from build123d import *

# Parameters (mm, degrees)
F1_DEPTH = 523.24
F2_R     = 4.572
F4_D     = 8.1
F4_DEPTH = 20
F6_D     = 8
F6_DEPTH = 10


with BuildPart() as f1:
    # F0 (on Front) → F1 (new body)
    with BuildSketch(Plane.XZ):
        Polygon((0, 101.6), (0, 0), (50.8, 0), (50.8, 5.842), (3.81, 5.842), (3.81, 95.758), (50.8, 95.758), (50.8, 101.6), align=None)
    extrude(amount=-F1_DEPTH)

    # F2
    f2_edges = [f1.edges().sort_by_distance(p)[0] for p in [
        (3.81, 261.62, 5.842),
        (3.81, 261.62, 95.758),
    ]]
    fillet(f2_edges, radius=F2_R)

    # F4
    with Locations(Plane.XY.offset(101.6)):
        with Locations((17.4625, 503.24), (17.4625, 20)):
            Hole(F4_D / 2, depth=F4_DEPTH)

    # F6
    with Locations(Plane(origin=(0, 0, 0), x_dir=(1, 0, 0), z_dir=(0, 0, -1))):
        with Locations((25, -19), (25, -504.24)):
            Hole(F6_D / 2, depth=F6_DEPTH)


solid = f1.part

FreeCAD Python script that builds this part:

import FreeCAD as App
import Part
import Sketcher
from FreeCAD import Vector
Q = App.Units.Quantity


def edges_at(feature, points):
    """Names of the edges that pass closest to the given points."""
    edges = feature.Shape.Edges
    near = lambda p: min(range(len(edges)), key=lambda i: edges[i].distToShape(Part.Vertex(*p))[0])
    return sorted({f"Edge{near(p) + 1}" for p in points})


def add_polygon(sketch, points):
    """Adds a closed chain of lines whose ends are joined by coincident constraints."""
    first, n = sketch.GeometryCount, len(points)
    for a, b in zip(points, points[1:] + points[:1]):
        sketch.addGeometry(Part.LineSegment(App.Vector(*a, 0), App.Vector(*b, 0)), False)
    for i in range(n):
        sketch.addConstraint(Sketcher.Constraint("Coincident", first + i, 2, first + (i + 1) % n, 1))

doc = App.newDocument("Part")
body = doc.addObject("PartDesign::Body", "Body")

sketch1 = doc.addObject("Sketcher::SketchObject", "Sketch")
body.addObject(sketch1)
sketch1.AttachmentSupport = (doc.XZ_Plane, [""])
sketch1.MapMode = "FlatFace"
add_polygon(sketch1, [(0, 101.6), (0, 0), (50.8, 0), (50.8, 5.842), (3.81, 5.842), (3.81, 95.758), (50.8, 95.758), (50.8, 101.6)])
sketch1.addConstraint(Sketcher.Constraint("Vertical", 0))
sketch1.addConstraint(Sketcher.Constraint("Horizontal", 1))
sketch1.addConstraint(Sketcher.Constraint("Vertical", 2))
sketch1.addConstraint(Sketcher.Constraint("Horizontal", 3))
sketch1.addConstraint(Sketcher.Constraint("Vertical", 4))
sketch1.addConstraint(Sketcher.Constraint("Horizontal", 5))
sketch1.addConstraint(Sketcher.Constraint("Vertical", 6))
sketch1.addConstraint(Sketcher.Constraint("Horizontal", 7))
sketch1.addConstraint(Sketcher.Constraint("Coincident", 0, 2, -1, 1))
sketch1.addConstraint(Sketcher.Constraint("Vertical", 2, 2, 5, 2))
sketch1.addConstraint(Sketcher.Constraint("Equal", 2, 6))
sketch1.addConstraint(Sketcher.Constraint("DistanceX", 1, 1, 1, 2, Q("2 in")))
sketch1.addConstraint(Sketcher.Constraint("DistanceY", 0, 2, 0, 1, Q("4 in")))
sketch1.addConstraint(Sketcher.Constraint("DistanceX", 3, 2, 3, 1, Q("1.85 in")))
sketch1.addConstraint(Sketcher.Constraint("DistanceY", 2, 1, 2, 2, Q("0.23 in")))
pad1 = doc.addObject("PartDesign::Pad", "Pad")
body.addObject(pad1)
pad1.Profile = sketch1
pad1.Length = Q("20.6 in")
pad1.Reversed = True
doc.recompute()

fillet = doc.addObject("PartDesign::Fillet", "Fillet")
body.addObject(fillet)
fillet.Base = (pad1, edges_at(pad1, [(3.81, 261.62, 5.842), (3.81, 261.62, 95.758)]))
fillet.Radius = Q("0.18 in")

sketch2 = doc.addObject("Sketcher::SketchObject", "Sketch001")
body.addObject(sketch2)
sketch2.AttachmentSupport = (doc.XY_Plane, [""])
sketch2.MapMode = "FlatFace"
sketch2.AttachmentOffset = App.Placement(Vector(0, 0, 4 * 25.4), App.Rotation())
sketch2.addGeometry(Part.Circle(Vector(17.4625, 503.24, 0), Vector(0, 0, 1), 4.05), False)
sketch2.addGeometry(Part.Circle(Vector(17.4625, 20, 0), Vector(0, 0, 1), 4.05), False)
sketch2.addConstraint(Sketcher.Constraint("Equal", 0, 1))
sketch2.addConstraint(Sketcher.Constraint("Vertical", 0, 3, 1, 3))
sketch2.addConstraint(Sketcher.Constraint("Diameter", 0, Q("8.1 mm")))
sketch2.addConstraint(Sketcher.Constraint("DistanceX", -1, 1, 0, 3, Q("0.6875 in")))
sketch2.addConstraint(Sketcher.Constraint("DistanceY", -1, 1, 0, 3, Q("503.24 mm")))
sketch2.addConstraint(Sketcher.Constraint("DistanceY", -1, 1, 1, 3, Q("20 mm")))
doc.recompute()
hole = doc.addObject("PartDesign::Hole", "Hole")
body.addObject(hole)
hole.Profile = sketch2
hole.ThreadType = "None"
hole.Diameter = 8.1
hole.DepthType = "Dimension"
hole.Depth = 20
hole.DrillPoint = "Flat"

sketch3 = doc.addObject("Sketcher::SketchObject", "Sketch002")
body.addObject(sketch3)
sketch3.AttachmentSupport = (doc.XY_Plane, [""])
sketch3.MapMode = "FlatFace"
sketch3.addGeometry(Part.Circle(Vector(25, 19, 0), Vector(0, 0, 1), 4), False)
sketch3.addGeometry(Part.Circle(Vector(25, 504.24, 0), Vector(0, 0, 1), 4), False)
sketch3.addConstraint(Sketcher.Constraint("Equal", 0, 1))
sketch3.addConstraint(Sketcher.Constraint("Vertical", 0, 3, 1, 3))
sketch3.addConstraint(Sketcher.Constraint("Diameter", 0, Q("8 mm")))
sketch3.addConstraint(Sketcher.Constraint("DistanceX", -1, 1, 0, 3, Q("25 mm")))
sketch3.addConstraint(Sketcher.Constraint("DistanceY", -1, 1, 0, 3, Q("19 mm")))
sketch3.addConstraint(Sketcher.Constraint("DistanceY", -1, 1, 1, 3, Q("504.24 mm")))
doc.recompute()
hole2 = doc.addObject("PartDesign::Hole", "Hole001")
body.addObject(hole2)
hole2.Profile = sketch3
hole2.ThreadType = "None"
hole2.Diameter = 8
hole2.DepthType = "Dimension"
hole2.Depth = 10
hole2.DrillPoint = "Flat"
hole2.Reversed = True

doc.recompute()
